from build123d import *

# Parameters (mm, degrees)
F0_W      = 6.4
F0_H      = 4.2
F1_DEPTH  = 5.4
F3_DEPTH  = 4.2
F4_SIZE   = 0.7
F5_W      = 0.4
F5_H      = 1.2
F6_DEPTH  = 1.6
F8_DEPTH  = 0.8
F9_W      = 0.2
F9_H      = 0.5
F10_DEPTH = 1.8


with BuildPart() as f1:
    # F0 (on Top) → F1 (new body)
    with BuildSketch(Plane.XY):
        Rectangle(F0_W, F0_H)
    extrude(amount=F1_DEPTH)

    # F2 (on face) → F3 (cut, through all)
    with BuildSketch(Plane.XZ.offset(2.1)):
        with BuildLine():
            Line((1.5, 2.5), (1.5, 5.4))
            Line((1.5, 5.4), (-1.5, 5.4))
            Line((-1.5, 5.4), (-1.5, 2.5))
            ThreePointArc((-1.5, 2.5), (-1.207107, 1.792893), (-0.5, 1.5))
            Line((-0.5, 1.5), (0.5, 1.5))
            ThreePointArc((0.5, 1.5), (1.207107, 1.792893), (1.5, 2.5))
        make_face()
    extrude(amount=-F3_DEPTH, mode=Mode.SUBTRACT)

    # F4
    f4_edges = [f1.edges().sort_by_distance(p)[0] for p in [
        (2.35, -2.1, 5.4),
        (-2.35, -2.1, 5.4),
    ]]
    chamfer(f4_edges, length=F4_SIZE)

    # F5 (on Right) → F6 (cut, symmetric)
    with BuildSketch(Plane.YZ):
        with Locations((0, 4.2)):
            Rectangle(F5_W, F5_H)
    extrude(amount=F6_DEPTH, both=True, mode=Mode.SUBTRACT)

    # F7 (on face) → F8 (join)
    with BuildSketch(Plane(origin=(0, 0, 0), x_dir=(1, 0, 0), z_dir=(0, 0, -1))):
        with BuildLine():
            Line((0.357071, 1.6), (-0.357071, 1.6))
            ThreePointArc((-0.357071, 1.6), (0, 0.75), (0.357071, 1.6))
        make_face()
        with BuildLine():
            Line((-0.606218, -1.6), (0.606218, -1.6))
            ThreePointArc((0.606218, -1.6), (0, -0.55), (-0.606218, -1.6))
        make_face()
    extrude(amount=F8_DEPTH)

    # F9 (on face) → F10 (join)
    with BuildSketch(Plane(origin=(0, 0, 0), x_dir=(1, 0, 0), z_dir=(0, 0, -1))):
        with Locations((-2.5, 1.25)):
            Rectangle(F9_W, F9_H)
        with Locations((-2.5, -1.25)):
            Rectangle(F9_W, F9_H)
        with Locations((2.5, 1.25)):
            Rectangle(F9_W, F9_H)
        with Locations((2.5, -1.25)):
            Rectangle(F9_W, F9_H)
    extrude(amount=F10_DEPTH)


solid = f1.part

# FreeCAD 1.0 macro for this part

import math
import FreeCAD as App
import Part
import Sketcher


def edges_at(feature, points):
    """Names of the edges that pass closest to the given points."""
    edges = feature.Shape.Edges
    near = lambda p: min(range(len(edges)), key=lambda i: edges[i].distToShape(Part.Vertex(*p))[0])
    return sorted({f"Edge{near(p) + 1}" for p in points})


def add_polygon(sketch, points):
    """Adds a closed chain of lines whose ends are joined by coincident constraints."""
    first, n = sketch.GeometryCount, len(points)
    for a, b in zip(points, points[1:] + points[:1]):
        sketch.addGeometry(Part.LineSegment(App.Vector(*a, 0), App.Vector(*b, 0)), False)
    for i in range(n):
        sketch.addConstraint(Sketcher.Constraint("Coincident", first + i, 2, first + (i + 1) % n, 1))

doc = App.newDocument("Part")
params = doc.addObject("Spreadsheet::Sheet", "Params")
for row, (alias, value) in enumerate([
    ("sketch1_width", "6.4 mm"),
    ("sketch1_height", "4.2 mm"),
    ("pad1_length", "5.4 mm"),
    ("sketch2_radius", "0.999999 mm"),
    ("sketch2_width", "3 mm"),
    ("sketch2_height", "2.9 mm"),
    ("chamfer_size", "0.7 mm"),
    ("sketch3_width", "0.4 mm"),
    ("sketch3_height", "1.2 mm"),
    ("pocket2_length", "3.2 mm"),
    ("sketch4_radius", "0.5 mm"),
    ("sketch4_radius2", "0.7 mm"),
    ("pad2_length", "0.8 mm"),
    ("sketch5_width", "0.2 mm"),
    ("sketch5_height", "0.5 mm"),
    ("pad3_length", "1.8 mm"),
], start=1):
    params.set(f"A{row}", alias)
    params.set(f"B{row}", "=" + value)
    params.setAlias(f"B{row}", alias)

body = doc.addObject("PartDesign::Body", "Body")

# Sketch on XY plane
sketch1 = doc.addObject("Sketcher::SketchObject", "Sketch")
body.addObject(sketch1)
sketch1.AttachmentSupport = (doc.XY_Plane, [""])
sketch1.MapMode = "FlatFace"
add_polygon(sketch1, [(-3.2, 2.1), (-3.2, -2.1), (3.2, -2.1), (3.2, 2.1)])  # lines 0-3
sketch1.addConstraint(Sketcher.Constraint("Vertical", 0))
sketch1.addConstraint(Sketcher.Constraint("Horizontal", 1))
sketch1.addConstraint(Sketcher.Constraint("Vertical", 2))
sketch1.addConstraint(Sketcher.Constraint("Horizontal", 3))
sketch1.addConstraint(Sketcher.Constraint("Symmetric", 0, 2, 2, 2, -1, 1))
sketch1.addConstraint(Sketcher.Constraint("DistanceX", 1, 1, 1, 2, 6.4))
sketch1.addConstraint(Sketcher.Constraint("DistanceY", 0, 2, 0, 1, 4.2))
sketch1.setExpression("Constraints[9]", "Params.sketch1_width")
sketch1.setExpression("Constraints[10]", "Params.sketch1_height")
pad1 = doc.addObject("PartDesign::Pad", "Pad")
body.addObject(pad1)
pad1.Profile = sketch1
pad1.setExpression("Length", "Params.pad1_length")

# Sketch on XZ plane
sketch2 = doc.addObject("Sketcher::SketchObject", "Sketch001")
body.addObject(sketch2)
sketch2.AttachmentSupport = (doc.XZ_Plane, [""])
sketch2.MapMode = "FlatFace"
sketch2.AttachmentOffset = App.Placement(App.Vector(0, 0, 2.1), App.Rotation())
sketch2.addGeometry(Part.LineSegment(App.Vector(1.5, 2.5, 0), App.Vector(1.5, 5.4, 0)), False)
sketch2.addGeometry(Part.LineSegment(App.Vector(1.5, 5.4, 0), App.Vector(-1.5, 5.4, 0)), False)
sketch2.addGeometry(Part.LineSegment(App.Vector(-1.5, 5.4, 0), App.Vector(-1.5, 2.5, 0)), False)
sketch2.addGeometry(Part.ArcOfCircle(Part.Circle(App.Vector(-0.5, 2.5, 0), App.Vector(0, 0, 1), 1), math.radians(180), math.radians(270)), False)
sketch2.addGeometry(Part.LineSegment(App.Vector(-0.5, 1.5, 0), App.Vector(0.5, 1.5, 0)), False)
sketch2.addGeometry(Part.ArcOfCircle(Part.Circle(App.Vector(0.5, 2.5, 0), App.Vector(0, 0, 1), 1), math.radians(-90), math.radians(0)), False)
sketch2.addConstraint(Sketcher.Constraint("Coincident", 0, 2, 1, 1))
sketch2.addConstraint(Sketcher.Constraint("Coincident", 1, 2, 2, 1))
sketch2.addConstraint(Sketcher.Constraint("Tangent", 2, 2, 3, 1))
sketch2.addConstraint(Sketcher.Constraint("Tangent", 3, 2, 4, 1))
sketch2.addConstraint(Sketcher.Constraint("Tangent", 4, 2, 5, 1))
sketch2.addConstraint(Sketcher.Constraint("Tangent", 5, 2, 0, 1))
sketch2.addConstraint(Sketcher.Constraint("Vertical", 0))
sketch2.addConstraint(Sketcher.Constraint("Horizontal", 1))
sketch2.addConstraint(Sketcher.Constraint("Vertical", 2))
sketch2.addConstraint(Sketcher.Constraint("Horizontal", 4))
sketch2.addConstraint(Sketcher.Constraint("Equal", 3, 5))
sketch2.addConstraint(Sketcher.Constraint("Radius", 3, 0.999999))
sketch2.addConstraint(Sketcher.Constraint("DistanceX", 1, 2, 1, 1, 3.0))
sketch2.addConstraint(Sketcher.Constraint("DistanceY", 0, 1, 0, 2, 2.9))
sketch2.addConstraint(Sketcher.Constraint("DistanceX", 3, 3, -1, 1, 0.500001))
sketch2.addConstraint(Sketcher.Constraint("DistanceY", -1, 1, 3, 3, 2.499999))
sketch2.setExpression("Constraints[11]", "Params.sketch2_radius")
sketch2.setExpression("Constraints[12]", "Params.sketch2_width")
sketch2.setExpression("Constraints[13]", "Params.sketch2_height")
pocket1 = doc.addObject("PartDesign::Pocket", "Pocket")
body.addObject(pocket1)
pocket1.Profile = sketch2
pocket1.Type = "ThroughAll"
doc.recompute()

chamfer = doc.addObject("PartDesign::Chamfer", "Chamfer")
body.addObject(chamfer)
chamfer.Base = (pocket1, edges_at(pocket1, [(2.35, -2.1, 5.4), (-2.35, -2.1, 5.4)]))
chamfer.setExpression("Size", "Params.chamfer_size")

# Sketch on YZ plane
sketch3 = doc.addObject("Sketcher::SketchObject", "Sketch002")
body.addObject(sketch3)
sketch3.AttachmentSupport = (doc.YZ_Plane, [""])
sketch3.MapMode = "FlatFace"
add_polygon(sketch3, [(-0.2, 4.8), (-0.2, 3.6), (0.2, 3.6), (0.2, 4.8)])  # lines 0-3
sketch3.addConstraint(Sketcher.Constraint("Vertical", 0))
sketch3.addConstraint(Sketcher.Constraint("Horizontal", 1))
sketch3.addConstraint(Sketcher.Constraint("Vertical", 2))
sketch3.addConstraint(Sketcher.Constraint("Horizontal", 3))
sketch3.addConstraint(Sketcher.Constraint("DistanceX", 1, 1, 1, 2, 0.4))
sketch3.addConstraint(Sketcher.Constraint("DistanceY", 0, 2, 0, 1, 1.2))
sketch3.addConstraint(Sketcher.Constraint("DistanceX", 0, 2, -1, 1, 0.2))
sketch3.addConstraint(Sketcher.Constraint("DistanceY", -1, 1, 0, 2, 3.6))
sketch3.setExpression("Constraints[8]", "Params.sketch3_width")
sketch3.setExpression("Constraints[9]", "Params.sketch3_height")
pocket2 = doc.addObject("PartDesign::Pocket", "Pocket001")
body.addObject(pocket2)
pocket2.Profile = sketch3
pocket2.setExpression("Length", "Params.pocket2_length")
pocket2.Midplane = True

# Sketch on XY plane
sketch4 = doc.addObject("Sketcher::SketchObject", "Sketch003")
body.addObject(sketch4)
sketch4.AttachmentSupport = (doc.XY_Plane, [""])
sketch4.MapMode = "FlatFace"
sketch4.addGeometry(Part.LineSegment(App.Vector(0.36, -1.6, 0), App.Vector(-0.36, -1.6, 0)), False)
sketch4.addGeometry(Part.ArcOfCircle(Part.Circle(App.Vector(0, -1.25, 0), App.Vector(0, 0, 1), 0.5), math.radians(-44), math.radians(224)), False)
sketch4.addGeometry(Part.LineSegment(App.Vector(-0.61, 1.6, 0), App.Vector(0.61, 1.6, 0)), False)
sketch4.addGeometry(Part.ArcOfCircle(Part.Circle(App.Vector(0, 1.25, 0), App.Vector(0, 0, 1), 0.7), math.radians(150), math.radians(390)), False)
sketch4.addConstraint(Sketcher.Constraint("Coincident", 0, 1, 1, 1))
sketch4.addConstraint(Sketcher.Constraint("Coincident", 1, 2, 0, 2))
sketch4.addConstraint(Sketcher.Constraint("Coincident", 2, 1, 3, 1))
sketch4.addConstraint(Sketcher.Constraint("Coincident", 3, 2, 2, 2))
sketch4.addConstraint(Sketcher.Constraint("Horizontal", 0))
sketch4.addConstraint(Sketcher.Constraint("Horizontal", 2))
sketch4.addConstraint(Sketcher.Constraint("Symmetric", 1, 3, 3, 3, -1, 1))
sketch4.addConstraint(Sketcher.Constraint("PointOnObject", 1, 3, -2))
sketch4.addConstraint(Sketcher.Constraint("Radius", 1, 0.5))
sketch4.addConstraint(Sketcher.Constraint("Radius", 3, 0.7))
sketch4.addConstraint(Sketcher.Constraint("DistanceY", 0, 1, -1, 1, 1.6))
sketch4.addConstraint(Sketcher.Constraint("DistanceY", -1, 1, 2, 1, 1.6))
sketch4.addConstraint(Sketcher.Constraint("DistanceY", 1, 3, 3, 3, 2.5))
sketch4.setExpression("Constraints[8]", "Params.sketch4_radius")
sketch4.setExpression("Constraints[9]", "Params.sketch4_radius2")
pad2 = doc.addObject("PartDesign::Pad", "Pad001")
body.addObject(pad2)
pad2.Profile = sketch4
pad2.setExpression("Length", "Params.pad2_length")
pad2.Reversed = True

# Sketch on XY plane
sketch5 = doc.addObject("Sketcher::SketchObject", "Sketch004")
body.addObject(sketch5)
sketch5.AttachmentSupport = (doc.XY_Plane, [""])
sketch5.MapMode = "FlatFace"
add_polygon(sketch5, [(-2.6, -1.5), (-2.6, -1), (-2.4, -1), (-2.4, -1.5)])  # lines 0-3
add_polygon(sketch5, [(-2.6, 1), (-2.6, 1.5), (-2.4, 1.5), (-2.4, 1)])  # lines 4-7
add_polygon(sketch5, [(2.4, -1.5), (2.4, -1), (2.6, -1), (2.6, -1.5)])  # lines 8-11
add_polygon(sketch5, [(2.4, 1), (2.4, 1.5), (2.6, 1.5), (2.6, 1)])  # lines 12-15
sketch5.addConstraint(Sketcher.Constraint("Vertical", 0))
sketch5.addConstraint(Sketcher.Constraint("Horizontal", 1))
sketch5.addConstraint(Sketcher.Constraint("Vertical", 2))
sketch5.addConstraint(Sketcher.Constraint("Horizontal", 3))
sketch5.addConstraint(Sketcher.Constraint("Vertical", 4))
sketch5.addConstraint(Sketcher.Constraint("Horizontal", 5))
sketch5.addConstraint(Sketcher.Constraint("Vertical", 6))
sketch5.addConstraint(Sketcher.Constraint("Horizontal", 7))
sketch5.addConstraint(Sketcher.Constraint("Vertical", 8))
sketch5.addConstraint(Sketcher.Constraint("Horizontal", 9))
sketch5.addConstraint(Sketcher.Constraint("Vertical", 10))
sketch5.addConstraint(Sketcher.Constraint("Horizontal", 11))
sketch5.addConstraint(Sketcher.Constraint("Vertical", 12))
sketch5.addConstraint(Sketcher.Constraint("Horizontal", 13))
sketch5.addConstraint(Sketcher.Constraint("Vertical", 14))
sketch5.addConstraint(Sketcher.Constraint("Horizontal", 15))
sketch5.addConstraint(Sketcher.Constraint("Symmetric", 6, 2, 8, 2, -1, 1))
sketch5.addConstraint(Sketcher.Constraint("Symmetric", 4, 2, 10, 2, -1, 1))
sketch5.addConstraint(Sketcher.Constraint("Symmetric", 2, 2, 12, 2, -1, 1))
sketch5.addConstraint(Sketcher.Constraint("Symmetric", 0, 2, 14, 2, -1, 1))
sketch5.addConstraint(Sketcher.Constraint("Symmetric", 1, 2, 8, 2, -2))
sketch5.addConstraint(Sketcher.Constraint("Symmetric", 3, 2, 10, 2, -2))
sketch5.addConstraint(Sketcher.Constraint("DistanceX", 1, 1, 1, 2, 0.2))
sketch5.addConstraint(Sketcher.Constraint("DistanceY", 0, 1, 0, 2, 0.5))
sketch5.addConstraint(Sketcher.Constraint("DistanceY", 0, 2, -1, 1, 1.0))
sketch5.addConstraint(Sketcher.Constraint("DistanceX", 0, 2, 8, 2, 5.0))
sketch5.setExpression("Constraints[38]", "Params.sketch5_width")
sketch5.setExpression("Constraints[39]", "Params.sketch5_height")
pad3 = doc.addObject("PartDesign::Pad", "Pad002")
body.addObject(pad3)
pad3.Profile = sketch5
pad3.setExpression("Length", "Params.pad3_length")
pad3.Reversed = True

doc.recompute()
